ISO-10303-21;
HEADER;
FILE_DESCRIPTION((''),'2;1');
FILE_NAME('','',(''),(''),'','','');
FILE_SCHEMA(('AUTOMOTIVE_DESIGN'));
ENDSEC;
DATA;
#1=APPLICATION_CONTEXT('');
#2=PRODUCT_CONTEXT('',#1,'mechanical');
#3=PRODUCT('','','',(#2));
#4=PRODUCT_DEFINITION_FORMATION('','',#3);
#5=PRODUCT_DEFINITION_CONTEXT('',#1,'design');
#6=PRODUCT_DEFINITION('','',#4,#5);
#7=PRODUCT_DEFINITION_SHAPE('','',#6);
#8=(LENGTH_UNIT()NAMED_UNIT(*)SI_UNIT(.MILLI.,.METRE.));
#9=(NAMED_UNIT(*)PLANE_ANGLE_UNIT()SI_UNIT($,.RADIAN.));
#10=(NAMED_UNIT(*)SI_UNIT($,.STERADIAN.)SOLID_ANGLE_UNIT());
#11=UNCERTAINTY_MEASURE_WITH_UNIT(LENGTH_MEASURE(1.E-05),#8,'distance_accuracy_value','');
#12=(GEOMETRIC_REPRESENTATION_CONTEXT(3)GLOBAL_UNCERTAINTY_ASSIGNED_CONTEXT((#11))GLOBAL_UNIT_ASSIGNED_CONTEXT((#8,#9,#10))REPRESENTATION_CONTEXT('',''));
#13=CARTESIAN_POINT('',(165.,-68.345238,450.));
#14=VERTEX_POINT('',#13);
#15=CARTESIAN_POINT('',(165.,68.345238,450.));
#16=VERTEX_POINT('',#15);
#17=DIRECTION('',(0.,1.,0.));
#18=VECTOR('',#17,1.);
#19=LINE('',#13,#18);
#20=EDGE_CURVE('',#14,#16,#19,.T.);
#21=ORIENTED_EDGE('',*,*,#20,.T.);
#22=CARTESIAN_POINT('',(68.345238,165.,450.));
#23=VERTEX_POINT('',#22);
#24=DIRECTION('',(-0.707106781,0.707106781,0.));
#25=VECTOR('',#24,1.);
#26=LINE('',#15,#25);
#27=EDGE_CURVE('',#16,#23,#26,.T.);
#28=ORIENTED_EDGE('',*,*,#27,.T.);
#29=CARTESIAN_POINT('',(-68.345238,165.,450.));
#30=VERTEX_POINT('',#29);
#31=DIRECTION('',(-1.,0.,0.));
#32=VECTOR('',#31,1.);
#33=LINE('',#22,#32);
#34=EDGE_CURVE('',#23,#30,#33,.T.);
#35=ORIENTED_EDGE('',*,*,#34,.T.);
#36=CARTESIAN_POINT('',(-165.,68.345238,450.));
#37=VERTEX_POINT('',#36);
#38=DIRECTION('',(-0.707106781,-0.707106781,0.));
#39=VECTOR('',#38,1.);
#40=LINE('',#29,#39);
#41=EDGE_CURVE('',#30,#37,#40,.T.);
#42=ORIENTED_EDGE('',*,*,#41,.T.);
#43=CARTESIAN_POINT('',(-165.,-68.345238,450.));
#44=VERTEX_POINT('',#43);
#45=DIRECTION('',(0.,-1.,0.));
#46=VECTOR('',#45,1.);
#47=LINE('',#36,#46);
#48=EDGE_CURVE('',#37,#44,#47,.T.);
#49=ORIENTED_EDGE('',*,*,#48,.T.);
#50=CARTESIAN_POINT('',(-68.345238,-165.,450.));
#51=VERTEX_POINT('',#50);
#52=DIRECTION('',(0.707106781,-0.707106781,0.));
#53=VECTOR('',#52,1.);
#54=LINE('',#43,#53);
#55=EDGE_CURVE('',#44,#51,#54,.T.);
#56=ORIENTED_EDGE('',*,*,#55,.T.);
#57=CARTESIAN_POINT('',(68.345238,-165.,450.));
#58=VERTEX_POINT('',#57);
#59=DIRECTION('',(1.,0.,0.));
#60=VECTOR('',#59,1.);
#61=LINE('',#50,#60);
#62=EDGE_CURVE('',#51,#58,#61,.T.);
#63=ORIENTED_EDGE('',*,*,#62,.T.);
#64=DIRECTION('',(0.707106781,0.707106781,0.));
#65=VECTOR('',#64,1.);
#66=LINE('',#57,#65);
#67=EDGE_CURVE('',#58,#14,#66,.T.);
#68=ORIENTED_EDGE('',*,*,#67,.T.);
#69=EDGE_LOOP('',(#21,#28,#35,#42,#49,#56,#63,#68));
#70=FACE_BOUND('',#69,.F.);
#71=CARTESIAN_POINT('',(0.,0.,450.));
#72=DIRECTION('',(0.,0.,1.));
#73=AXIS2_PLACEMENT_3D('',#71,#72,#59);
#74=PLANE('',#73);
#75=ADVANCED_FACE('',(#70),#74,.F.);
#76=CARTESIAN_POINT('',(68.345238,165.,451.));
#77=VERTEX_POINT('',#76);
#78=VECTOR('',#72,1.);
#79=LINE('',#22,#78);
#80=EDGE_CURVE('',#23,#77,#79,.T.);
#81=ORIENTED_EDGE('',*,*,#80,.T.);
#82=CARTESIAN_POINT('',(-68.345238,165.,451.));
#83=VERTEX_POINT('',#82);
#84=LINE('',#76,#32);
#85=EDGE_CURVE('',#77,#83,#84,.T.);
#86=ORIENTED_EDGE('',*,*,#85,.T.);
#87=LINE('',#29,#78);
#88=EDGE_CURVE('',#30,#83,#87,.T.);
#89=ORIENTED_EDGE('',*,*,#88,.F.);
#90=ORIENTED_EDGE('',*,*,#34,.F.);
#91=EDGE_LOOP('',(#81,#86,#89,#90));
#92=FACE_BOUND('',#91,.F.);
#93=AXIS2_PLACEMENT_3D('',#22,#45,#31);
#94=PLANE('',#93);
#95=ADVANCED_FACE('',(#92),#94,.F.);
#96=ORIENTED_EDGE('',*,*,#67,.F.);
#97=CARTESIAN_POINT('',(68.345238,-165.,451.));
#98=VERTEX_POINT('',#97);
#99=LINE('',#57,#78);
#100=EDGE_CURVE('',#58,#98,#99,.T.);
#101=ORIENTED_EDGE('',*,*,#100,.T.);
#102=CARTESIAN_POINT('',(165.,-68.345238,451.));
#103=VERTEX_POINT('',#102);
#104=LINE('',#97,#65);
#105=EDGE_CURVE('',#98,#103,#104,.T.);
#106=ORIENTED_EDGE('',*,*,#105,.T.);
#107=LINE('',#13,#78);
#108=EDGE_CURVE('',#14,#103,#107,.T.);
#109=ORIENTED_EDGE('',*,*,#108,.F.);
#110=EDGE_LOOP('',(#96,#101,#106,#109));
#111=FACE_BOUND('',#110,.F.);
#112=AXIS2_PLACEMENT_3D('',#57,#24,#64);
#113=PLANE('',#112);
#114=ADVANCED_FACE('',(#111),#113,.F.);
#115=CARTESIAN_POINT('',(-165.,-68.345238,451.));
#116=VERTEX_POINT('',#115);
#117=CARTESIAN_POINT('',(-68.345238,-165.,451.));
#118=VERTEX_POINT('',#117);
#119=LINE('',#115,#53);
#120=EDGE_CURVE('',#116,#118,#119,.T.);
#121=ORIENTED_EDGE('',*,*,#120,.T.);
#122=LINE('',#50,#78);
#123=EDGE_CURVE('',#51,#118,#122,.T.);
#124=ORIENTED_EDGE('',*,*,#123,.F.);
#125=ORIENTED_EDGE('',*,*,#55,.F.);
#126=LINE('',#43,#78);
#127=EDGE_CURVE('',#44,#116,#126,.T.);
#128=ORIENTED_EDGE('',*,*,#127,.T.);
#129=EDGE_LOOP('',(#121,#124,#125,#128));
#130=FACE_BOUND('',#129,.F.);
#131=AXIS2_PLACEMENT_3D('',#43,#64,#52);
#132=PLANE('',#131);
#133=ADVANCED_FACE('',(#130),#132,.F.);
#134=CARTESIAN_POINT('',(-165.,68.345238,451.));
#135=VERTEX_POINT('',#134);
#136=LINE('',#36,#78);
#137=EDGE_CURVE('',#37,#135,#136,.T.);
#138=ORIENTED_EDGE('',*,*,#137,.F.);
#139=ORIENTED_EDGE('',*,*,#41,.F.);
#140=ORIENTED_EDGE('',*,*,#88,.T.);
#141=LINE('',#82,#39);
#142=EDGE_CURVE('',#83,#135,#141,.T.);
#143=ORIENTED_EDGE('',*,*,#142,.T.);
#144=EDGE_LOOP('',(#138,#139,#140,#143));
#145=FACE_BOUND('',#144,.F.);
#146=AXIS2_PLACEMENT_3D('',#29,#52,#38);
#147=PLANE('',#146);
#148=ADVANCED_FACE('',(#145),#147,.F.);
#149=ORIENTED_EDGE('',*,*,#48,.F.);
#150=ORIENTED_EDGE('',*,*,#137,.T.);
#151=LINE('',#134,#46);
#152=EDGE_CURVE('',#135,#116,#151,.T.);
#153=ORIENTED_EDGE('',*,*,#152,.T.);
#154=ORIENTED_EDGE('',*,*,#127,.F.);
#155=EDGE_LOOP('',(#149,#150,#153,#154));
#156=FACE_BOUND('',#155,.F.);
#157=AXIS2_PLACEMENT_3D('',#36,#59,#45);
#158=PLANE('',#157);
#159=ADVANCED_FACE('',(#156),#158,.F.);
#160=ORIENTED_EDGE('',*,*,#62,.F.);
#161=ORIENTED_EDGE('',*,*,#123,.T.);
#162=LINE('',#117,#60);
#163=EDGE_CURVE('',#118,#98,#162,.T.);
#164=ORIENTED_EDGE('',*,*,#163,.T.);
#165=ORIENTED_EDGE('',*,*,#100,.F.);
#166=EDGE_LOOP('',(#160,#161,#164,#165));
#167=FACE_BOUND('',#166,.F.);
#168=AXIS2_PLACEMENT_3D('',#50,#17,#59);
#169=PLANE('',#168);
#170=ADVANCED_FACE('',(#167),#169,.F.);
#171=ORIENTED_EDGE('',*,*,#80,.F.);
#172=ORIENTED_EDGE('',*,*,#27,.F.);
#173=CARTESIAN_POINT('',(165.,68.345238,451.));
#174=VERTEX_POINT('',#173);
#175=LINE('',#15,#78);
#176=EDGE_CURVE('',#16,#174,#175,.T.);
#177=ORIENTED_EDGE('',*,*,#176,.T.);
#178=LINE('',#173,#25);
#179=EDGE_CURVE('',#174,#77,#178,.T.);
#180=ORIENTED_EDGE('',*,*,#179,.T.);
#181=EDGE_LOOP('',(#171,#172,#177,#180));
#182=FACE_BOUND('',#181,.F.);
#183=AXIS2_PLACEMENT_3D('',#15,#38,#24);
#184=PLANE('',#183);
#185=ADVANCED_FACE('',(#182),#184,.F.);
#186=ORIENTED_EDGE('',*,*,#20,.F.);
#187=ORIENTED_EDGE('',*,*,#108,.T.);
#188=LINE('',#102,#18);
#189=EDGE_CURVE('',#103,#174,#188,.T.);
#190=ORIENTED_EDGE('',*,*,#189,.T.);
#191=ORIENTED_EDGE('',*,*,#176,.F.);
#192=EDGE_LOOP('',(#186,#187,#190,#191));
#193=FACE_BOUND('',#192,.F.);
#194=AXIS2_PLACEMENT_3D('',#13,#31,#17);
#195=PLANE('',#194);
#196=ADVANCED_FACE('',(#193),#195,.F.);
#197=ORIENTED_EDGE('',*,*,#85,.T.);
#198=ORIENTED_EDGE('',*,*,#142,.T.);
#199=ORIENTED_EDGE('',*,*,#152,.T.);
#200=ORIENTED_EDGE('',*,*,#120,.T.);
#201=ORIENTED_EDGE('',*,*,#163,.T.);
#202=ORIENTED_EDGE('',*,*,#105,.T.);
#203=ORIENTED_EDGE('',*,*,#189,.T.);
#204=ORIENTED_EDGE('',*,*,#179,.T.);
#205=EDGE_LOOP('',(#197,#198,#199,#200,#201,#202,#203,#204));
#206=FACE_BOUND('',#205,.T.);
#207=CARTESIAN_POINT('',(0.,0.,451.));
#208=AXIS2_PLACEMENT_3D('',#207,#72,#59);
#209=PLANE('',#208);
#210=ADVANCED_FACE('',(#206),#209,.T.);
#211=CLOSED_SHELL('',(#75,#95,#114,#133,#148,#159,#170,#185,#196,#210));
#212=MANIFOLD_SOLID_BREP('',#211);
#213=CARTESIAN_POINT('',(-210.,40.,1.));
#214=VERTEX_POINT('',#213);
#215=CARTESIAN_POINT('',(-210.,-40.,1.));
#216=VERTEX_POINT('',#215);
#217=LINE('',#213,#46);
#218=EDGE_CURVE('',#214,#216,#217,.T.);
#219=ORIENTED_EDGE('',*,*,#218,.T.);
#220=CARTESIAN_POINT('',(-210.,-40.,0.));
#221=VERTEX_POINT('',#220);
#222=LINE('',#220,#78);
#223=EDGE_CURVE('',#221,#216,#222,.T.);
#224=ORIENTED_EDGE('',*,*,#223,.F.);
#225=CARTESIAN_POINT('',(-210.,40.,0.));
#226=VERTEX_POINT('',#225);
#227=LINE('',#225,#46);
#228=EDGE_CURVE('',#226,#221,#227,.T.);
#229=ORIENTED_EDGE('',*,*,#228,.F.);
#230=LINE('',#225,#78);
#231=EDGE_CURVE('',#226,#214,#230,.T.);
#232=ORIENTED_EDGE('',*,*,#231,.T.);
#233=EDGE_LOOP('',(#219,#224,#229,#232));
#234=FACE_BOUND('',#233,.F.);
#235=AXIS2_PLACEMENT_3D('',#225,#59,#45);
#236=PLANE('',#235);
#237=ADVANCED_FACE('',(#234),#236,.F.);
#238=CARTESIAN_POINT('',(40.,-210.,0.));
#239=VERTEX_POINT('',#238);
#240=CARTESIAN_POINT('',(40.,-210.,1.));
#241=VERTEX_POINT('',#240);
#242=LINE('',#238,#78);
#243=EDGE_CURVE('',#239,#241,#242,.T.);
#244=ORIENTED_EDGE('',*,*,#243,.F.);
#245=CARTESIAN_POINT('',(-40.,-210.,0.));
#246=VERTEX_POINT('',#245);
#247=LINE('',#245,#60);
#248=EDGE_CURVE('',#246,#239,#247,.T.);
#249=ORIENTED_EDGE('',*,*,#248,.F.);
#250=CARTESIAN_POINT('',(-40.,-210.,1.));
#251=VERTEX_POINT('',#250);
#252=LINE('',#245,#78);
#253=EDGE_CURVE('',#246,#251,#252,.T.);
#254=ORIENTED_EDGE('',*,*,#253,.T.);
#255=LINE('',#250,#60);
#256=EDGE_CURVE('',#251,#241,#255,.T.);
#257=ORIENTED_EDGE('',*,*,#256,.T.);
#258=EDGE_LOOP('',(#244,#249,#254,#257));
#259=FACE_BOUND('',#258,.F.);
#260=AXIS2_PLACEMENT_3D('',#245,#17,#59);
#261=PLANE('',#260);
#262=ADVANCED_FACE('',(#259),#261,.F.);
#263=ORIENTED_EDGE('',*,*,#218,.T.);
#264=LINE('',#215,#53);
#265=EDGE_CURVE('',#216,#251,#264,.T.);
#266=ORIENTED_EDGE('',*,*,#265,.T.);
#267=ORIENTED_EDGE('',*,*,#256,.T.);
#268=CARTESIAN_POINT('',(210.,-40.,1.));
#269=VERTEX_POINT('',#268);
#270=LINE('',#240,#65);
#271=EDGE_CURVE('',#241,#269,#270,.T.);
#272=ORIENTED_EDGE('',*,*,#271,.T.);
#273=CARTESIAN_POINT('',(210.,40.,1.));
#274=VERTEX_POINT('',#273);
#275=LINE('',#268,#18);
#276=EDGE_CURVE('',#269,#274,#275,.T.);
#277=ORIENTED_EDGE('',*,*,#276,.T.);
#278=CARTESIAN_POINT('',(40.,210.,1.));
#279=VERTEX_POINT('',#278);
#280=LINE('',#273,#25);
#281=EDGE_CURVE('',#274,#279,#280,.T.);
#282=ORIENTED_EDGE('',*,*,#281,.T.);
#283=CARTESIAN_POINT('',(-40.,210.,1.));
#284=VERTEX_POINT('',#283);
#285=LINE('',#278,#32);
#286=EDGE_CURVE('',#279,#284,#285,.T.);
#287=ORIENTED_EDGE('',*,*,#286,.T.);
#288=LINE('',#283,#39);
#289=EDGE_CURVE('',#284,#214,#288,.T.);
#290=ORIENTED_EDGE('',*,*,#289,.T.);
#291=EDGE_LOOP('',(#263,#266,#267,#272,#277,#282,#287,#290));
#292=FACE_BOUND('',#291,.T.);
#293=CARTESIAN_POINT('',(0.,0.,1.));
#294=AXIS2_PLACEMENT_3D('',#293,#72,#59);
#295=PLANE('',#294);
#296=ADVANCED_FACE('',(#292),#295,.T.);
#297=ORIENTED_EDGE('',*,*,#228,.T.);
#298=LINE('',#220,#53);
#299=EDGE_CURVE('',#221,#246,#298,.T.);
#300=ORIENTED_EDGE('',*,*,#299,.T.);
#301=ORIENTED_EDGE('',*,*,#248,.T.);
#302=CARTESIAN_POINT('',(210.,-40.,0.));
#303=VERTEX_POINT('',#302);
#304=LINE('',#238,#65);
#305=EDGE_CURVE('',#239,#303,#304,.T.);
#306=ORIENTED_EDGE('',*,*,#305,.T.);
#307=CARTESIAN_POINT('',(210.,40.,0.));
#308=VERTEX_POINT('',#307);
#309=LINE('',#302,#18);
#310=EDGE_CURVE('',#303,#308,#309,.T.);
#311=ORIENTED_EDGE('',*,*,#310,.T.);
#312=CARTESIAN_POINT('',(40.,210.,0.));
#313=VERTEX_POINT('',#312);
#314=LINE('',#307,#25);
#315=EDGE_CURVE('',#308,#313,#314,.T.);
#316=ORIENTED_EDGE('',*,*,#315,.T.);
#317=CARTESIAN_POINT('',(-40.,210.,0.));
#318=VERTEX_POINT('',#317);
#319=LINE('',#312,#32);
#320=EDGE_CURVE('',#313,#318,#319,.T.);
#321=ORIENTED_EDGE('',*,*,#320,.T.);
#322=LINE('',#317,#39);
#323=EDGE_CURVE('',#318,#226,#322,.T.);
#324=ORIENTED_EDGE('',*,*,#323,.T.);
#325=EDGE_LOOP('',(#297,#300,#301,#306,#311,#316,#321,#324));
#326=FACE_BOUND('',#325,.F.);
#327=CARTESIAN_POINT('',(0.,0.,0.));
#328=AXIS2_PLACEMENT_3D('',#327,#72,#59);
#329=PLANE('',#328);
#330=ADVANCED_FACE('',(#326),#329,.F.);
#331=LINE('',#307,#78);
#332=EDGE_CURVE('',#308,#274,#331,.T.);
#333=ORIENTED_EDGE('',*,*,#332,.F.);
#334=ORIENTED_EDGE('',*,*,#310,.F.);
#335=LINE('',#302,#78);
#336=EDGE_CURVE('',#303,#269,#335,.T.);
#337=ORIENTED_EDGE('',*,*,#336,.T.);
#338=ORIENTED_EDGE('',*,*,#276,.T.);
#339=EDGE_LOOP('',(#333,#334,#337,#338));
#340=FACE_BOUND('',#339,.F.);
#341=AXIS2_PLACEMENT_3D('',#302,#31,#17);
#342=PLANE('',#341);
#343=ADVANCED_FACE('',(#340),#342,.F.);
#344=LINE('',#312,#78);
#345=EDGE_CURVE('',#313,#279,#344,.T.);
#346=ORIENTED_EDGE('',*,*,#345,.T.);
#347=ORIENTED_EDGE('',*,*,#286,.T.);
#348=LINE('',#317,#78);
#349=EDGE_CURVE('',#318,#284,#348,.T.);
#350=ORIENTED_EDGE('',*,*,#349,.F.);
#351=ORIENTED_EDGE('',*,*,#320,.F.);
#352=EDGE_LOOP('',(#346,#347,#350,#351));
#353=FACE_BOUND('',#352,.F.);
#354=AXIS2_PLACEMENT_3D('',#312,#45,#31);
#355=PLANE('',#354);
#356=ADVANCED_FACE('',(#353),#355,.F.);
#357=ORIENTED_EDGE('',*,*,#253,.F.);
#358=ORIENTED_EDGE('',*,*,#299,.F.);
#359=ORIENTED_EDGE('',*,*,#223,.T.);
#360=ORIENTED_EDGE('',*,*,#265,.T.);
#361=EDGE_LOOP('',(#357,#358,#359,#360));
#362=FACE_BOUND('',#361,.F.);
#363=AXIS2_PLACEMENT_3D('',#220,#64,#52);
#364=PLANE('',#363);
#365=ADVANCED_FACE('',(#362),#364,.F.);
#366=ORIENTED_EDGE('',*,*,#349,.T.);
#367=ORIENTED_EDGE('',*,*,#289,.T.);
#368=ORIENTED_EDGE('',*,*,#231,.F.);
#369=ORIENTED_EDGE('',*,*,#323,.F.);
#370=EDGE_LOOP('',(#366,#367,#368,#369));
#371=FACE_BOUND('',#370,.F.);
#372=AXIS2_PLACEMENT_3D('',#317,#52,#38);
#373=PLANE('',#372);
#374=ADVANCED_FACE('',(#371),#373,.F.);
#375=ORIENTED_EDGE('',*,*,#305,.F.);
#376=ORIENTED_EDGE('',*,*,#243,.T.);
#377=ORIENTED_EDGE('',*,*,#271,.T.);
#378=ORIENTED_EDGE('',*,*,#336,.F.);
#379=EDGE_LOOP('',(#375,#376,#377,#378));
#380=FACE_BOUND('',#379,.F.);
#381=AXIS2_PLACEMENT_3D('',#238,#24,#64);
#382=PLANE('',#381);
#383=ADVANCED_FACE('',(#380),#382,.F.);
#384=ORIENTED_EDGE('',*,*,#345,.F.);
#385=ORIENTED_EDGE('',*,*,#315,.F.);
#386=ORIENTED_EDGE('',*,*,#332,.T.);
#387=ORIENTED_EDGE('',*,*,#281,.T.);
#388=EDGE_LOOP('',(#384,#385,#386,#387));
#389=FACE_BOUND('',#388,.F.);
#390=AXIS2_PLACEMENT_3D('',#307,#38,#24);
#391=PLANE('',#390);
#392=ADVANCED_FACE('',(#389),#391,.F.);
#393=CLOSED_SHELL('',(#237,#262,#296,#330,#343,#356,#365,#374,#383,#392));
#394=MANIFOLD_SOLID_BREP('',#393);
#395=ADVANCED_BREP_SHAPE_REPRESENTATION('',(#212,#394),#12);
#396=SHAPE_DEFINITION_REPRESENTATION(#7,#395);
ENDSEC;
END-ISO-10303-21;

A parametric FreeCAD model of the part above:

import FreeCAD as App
import Part
import Sketcher

doc = App.newDocument("Part")
body = doc.addObject("PartDesign::Body", "Body")

sketch1 = body.newObject("Sketcher::SketchObject", "Sketch")
sketch1.AttachmentSupport = (doc.getObject("XY_Plane"), [""])
sketch1.MapMode = "FlatFace"
sketch1.AttachmentOffset = App.Placement(App.Vector(0, 0, 450), App.Rotation())
sketch1.addGeometry(Part.LineSegment(App.Vector(-68, 165, 0), App.Vector(-165, 68, 0)), False)
sketch1.addGeometry(Part.LineSegment(App.Vector(-165, 68, 0), App.Vector(-165, -68, 0)), False)
sketch1.addGeometry(Part.LineSegment(App.Vector(-165, -68, 0), App.Vector(-68, -165, 0)), False)
sketch1.addGeometry(Part.LineSegment(App.Vector(-68, -165, 0), App.Vector(68, -165, 0)), False)
sketch1.addGeometry(Part.LineSegment(App.Vector(68, -165, 0), App.Vector(165, -68, 0)), False)
sketch1.addGeometry(Part.LineSegment(App.Vector(165, -68, 0), App.Vector(165, 68, 0)), False)
sketch1.addGeometry(Part.LineSegment(App.Vector(165, 68, 0), App.Vector(68, 165, 0)), False)
sketch1.addGeometry(Part.LineSegment(App.Vector(68, 165, 0), App.Vector(-68, 165, 0)), False)
sketch1.addConstraint(Sketcher.Constraint("Coincident", 0, 2, 1, 1))
sketch1.addConstraint(Sketcher.Constraint("Coincident", 1, 2, 2, 1))
sketch1.addConstraint(Sketcher.Constraint("Coincident", 2, 2, 3, 1))
sketch1.addConstraint(Sketcher.Constraint("Coincident", 3, 2, 4, 1))
sketch1.addConstraint(Sketcher.Constraint("Coincident", 4, 2, 5, 1))
sketch1.addConstraint(Sketcher.Constraint("Coincident", 5, 2, 6, 1))
sketch1.addConstraint(Sketcher.Constraint("Coincident", 6, 2, 7, 1))
sketch1.addConstraint(Sketcher.Constraint("Coincident", 7, 2, 0, 1))
sketch1.addConstraint(Sketcher.Constraint("Vertical", 1))
sketch1.addConstraint(Sketcher.Constraint("Horizontal", 3))
sketch1.addConstraint(Sketcher.Constraint("Vertical", 5))
sketch1.addConstraint(Sketcher.Constraint("Horizontal", 7))
sketch1.addConstraint(Sketcher.Constraint("Symmetric", 0, 2, 4, 2, -1, 1))
sketch1.addConstraint(Sketcher.Constraint("Symmetric", 2, 2, 6, 2, -1, 1))
sketch1.addConstraint(Sketcher.Constraint("Perpendicular", 0, 2))
sketch1.addConstraint(Sketcher.Constraint("Perpendicular", 2, 4))
sketch1.addConstraint(Sketcher.Constraint("Perpendicular", 4, 6))
sketch1.addConstraint(Sketcher.Constraint("Horizontal", 1, 2, 4, 2))
sketch1.addConstraint(Sketcher.Constraint("Vertical", 3, 2, 6, 2))
sketch1.addConstraint(Sketcher.Constraint("Equal", 7, 1))
sketch1.addConstraint(Sketcher.Constraint("DistanceX", 0, 2, -1, 1, 165.0))
sketch1.addConstraint(Sketcher.Constraint("DistanceX", 3, 1, 3, 2, 136.690476))
pad1 = body.newObject("PartDesign::Pad", "Pad")
pad1.Profile = sketch1
pad1.Length = 1
body2 = doc.addObject("PartDesign::Body", "Body001")

sketch2 = body2.newObject("Sketcher::SketchObject", "Sketch001")
sketch2.AttachmentSupport = (doc.getObject("XY_Plane001"), [""])
sketch2.MapMode = "FlatFace"
sketch2.addGeometry(Part.LineSegment(App.Vector(-210, 40, 0), App.Vector(-210, -40, 0)), False)
sketch2.addGeometry(Part.LineSegment(App.Vector(-210, -40, 0), App.Vector(-40, -210, 0)), False)
sketch2.addGeometry(Part.LineSegment(App.Vector(-40, -210, 0), App.Vector(40, -210, 0)), False)
sketch2.addGeometry(Part.LineSegment(App.Vector(40, -210, 0), App.Vector(210, -40, 0)), False)
sketch2.addGeometry(Part.LineSegment(App.Vector(210, -40, 0), App.Vector(210, 40, 0)), False)
sketch2.addGeometry(Part.LineSegment(App.Vector(210, 40, 0), App.Vector(40, 210, 0)), False)
sketch2.addGeometry(Part.LineSegment(App.Vector(40, 210, 0), App.Vector(-40, 210, 0)), False)
sketch2.addGeometry(Part.LineSegment(App.Vector(-40, 210, 0), App.Vector(-210, 40, 0)), False)
sketch2.addConstraint(Sketcher.Constraint("Coincident", 0, 2, 1, 1))
sketch2.addConstraint(Sketcher.Constraint("Coincident", 1, 2, 2, 1))
sketch2.addConstraint(Sketcher.Constraint("Coincident", 2, 2, 3, 1))
sketch2.addConstraint(Sketcher.Constraint("Coincident", 3, 2, 4, 1))
sketch2.addConstraint(Sketcher.Constraint("Coincident", 4, 2, 5, 1))
sketch2.addConstraint(Sketcher.Constraint("Coincident", 5, 2, 6, 1))
sketch2.addConstraint(Sketcher.Constraint("Coincident", 6, 2, 7, 1))
sketch2.addConstraint(Sketcher.Constraint("Coincident", 7, 2, 0, 1))
sketch2.addConstraint(Sketcher.Constraint("Vertical", 0))
sketch2.addConstraint(Sketcher.Constraint("Horizontal", 2))
sketch2.addConstraint(Sketcher.Constraint("Vertical", 4))
sketch2.addConstraint(Sketcher.Constraint("Horizontal", 6))
sketch2.addConstraint(Sketcher.Constraint("Symmetric", 0, 2, 4, 2, -1, 1))
sketch2.addConstraint(Sketcher.Constraint("Symmetric", 1, 2, 5, 2, -1, 1))
sketch2.addConstraint(Sketcher.Constraint("Perpendicular", 1, 3))
sketch2.addConstraint(Sketcher.Constraint("Perpendicular", 5, 7))
sketch2.addConstraint(Sketcher.Constraint("Horizontal", 0, 2, 3, 2))
sketch2.addConstraint(Sketcher.Constraint("Horizontal", 4, 2, 7, 2))
sketch2.addConstraint(Sketcher.Constraint("Vertical", 2, 2, 5, 2))
sketch2.addConstraint(Sketcher.Constraint("Equal", 6, 0))
sketch2.addConstraint(Sketcher.Constraint("DistanceX", 2, 1, 2, 2, 80.0))
sketch2.addConstraint(Sketcher.Constraint("DistanceX", 0, 2, -1, 1, 210.0))
pad2 = body2.newObject("PartDesign::Pad", "Pad001")
pad2.Profile = sketch2
pad2.Length = 1

doc.recompute()
